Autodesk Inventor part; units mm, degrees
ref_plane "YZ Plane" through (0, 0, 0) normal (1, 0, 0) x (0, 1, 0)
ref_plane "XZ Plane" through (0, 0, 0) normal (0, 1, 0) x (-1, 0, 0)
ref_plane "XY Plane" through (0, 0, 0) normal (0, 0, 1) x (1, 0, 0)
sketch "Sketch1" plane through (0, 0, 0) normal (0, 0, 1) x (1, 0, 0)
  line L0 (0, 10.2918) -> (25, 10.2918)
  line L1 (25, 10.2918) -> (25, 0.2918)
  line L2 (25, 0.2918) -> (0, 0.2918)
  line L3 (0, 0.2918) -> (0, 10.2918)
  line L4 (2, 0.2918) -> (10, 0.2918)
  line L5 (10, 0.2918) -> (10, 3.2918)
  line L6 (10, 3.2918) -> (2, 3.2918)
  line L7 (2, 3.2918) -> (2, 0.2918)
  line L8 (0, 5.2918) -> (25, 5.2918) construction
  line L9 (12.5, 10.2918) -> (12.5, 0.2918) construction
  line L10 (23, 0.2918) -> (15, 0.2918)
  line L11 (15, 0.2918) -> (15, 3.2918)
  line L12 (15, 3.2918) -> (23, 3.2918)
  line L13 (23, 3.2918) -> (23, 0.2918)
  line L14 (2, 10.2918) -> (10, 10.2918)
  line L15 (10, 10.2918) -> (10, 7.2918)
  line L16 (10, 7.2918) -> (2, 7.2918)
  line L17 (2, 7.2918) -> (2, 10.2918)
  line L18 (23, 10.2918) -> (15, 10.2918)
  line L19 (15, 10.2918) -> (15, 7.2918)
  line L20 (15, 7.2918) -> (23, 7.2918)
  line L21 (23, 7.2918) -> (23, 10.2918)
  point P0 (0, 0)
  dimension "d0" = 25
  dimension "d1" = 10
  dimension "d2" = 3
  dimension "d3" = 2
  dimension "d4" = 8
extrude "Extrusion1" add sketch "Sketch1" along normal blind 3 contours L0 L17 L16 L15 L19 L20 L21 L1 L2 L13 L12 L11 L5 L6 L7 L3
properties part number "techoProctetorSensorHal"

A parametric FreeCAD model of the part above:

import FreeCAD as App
import Part
import Sketcher


def add_polygon(sketch, points):
    """Adds a closed chain of lines whose ends are joined by coincident constraints."""
    first, n = sketch.GeometryCount, len(points)
    for a, b in zip(points, points[1:] + points[:1]):
        sketch.addGeometry(Part.LineSegment(App.Vector(*a, 0), App.Vector(*b, 0)), False)
    for i in range(n):
        sketch.addConstraint(Sketcher.Constraint("Coincident", first + i, 2, first + (i + 1) % n, 1))

doc = App.newDocument("Part")
body = doc.addObject("PartDesign::Body", "Body")

sketch1 = body.newObject("Sketcher::SketchObject", "Sketch")
sketch1.AttachmentSupport = (doc.getObject("XY_Plane"), [""])
sketch1.MapMode = "FlatFace"
add_polygon(sketch1, [(2, 10.2918), (0, 10.2918), (0, 0.2918), (2, 0.2918), (2, 3.2918), (10, 3.2918), (10, 0.2918), (15, 0.2918), (15, 3.2918), (23, 3.2918), (23, 0.2918), (25, 0.2918), (25, 10.2918), (23, 10.2918), (23, 7.2918), (15, 7.2918), (15, 10.2918), (10, 10.2918), (10, 7.2918), (2, 7.2918)])
sketch1.addConstraint(Sketcher.Constraint("Horizontal", 0))
sketch1.addConstraint(Sketcher.Constraint("Vertical", 1))
sketch1.addConstraint(Sketcher.Constraint("Horizontal", 2))
sketch1.addConstraint(Sketcher.Constraint("Vertical", 3))
sketch1.addConstraint(Sketcher.Constraint("Horizontal", 4))
sketch1.addConstraint(Sketcher.Constraint("Vertical", 5))
sketch1.addConstraint(Sketcher.Constraint("Horizontal", 6))
sketch1.addConstraint(Sketcher.Constraint("Vertical", 7))
sketch1.addConstraint(Sketcher.Constraint("Horizontal", 8))
sketch1.addConstraint(Sketcher.Constraint("Vertical", 9))
sketch1.addConstraint(Sketcher.Constraint("Horizontal", 10))
sketch1.addConstraint(Sketcher.Constraint("Vertical", 11))
sketch1.addConstraint(Sketcher.Constraint("Horizontal", 12))
sketch1.addConstraint(Sketcher.Constraint("Vertical", 13))
sketch1.addConstraint(Sketcher.Constraint("Horizontal", 14))
sketch1.addConstraint(Sketcher.Constraint("Vertical", 15))
sketch1.addConstraint(Sketcher.Constraint("Horizontal", 16))
sketch1.addConstraint(Sketcher.Constraint("Vertical", 17))
sketch1.addConstraint(Sketcher.Constraint("Horizontal", 18))
sketch1.addConstraint(Sketcher.Constraint("Vertical", 19))
sketch1.addConstraint(Sketcher.Constraint("PointOnObject", 0, 2, -2))
sketch1.addConstraint(Sketcher.Constraint("Horizontal", 2, 2, 5, 2))
sketch1.addConstraint(Sketcher.Constraint("Horizontal", 4, 2, 7, 2))
sketch1.addConstraint(Sketcher.Constraint("Horizontal", 6, 2, 9, 2))
sketch1.addConstraint(Sketcher.Constraint("Horizontal", 0, 2, 11, 2))
sketch1.addConstraint(Sketcher.Constraint("Horizontal", 12, 2, 15, 2))
sketch1.addConstraint(Sketcher.Constraint("Horizontal", 14, 2, 17, 2))
sketch1.addConstraint(Sketcher.Constraint("Vertical", 9, 2, 12, 2))
sketch1.addConstraint(Sketcher.Constraint("Vertical", 7, 2, 14, 2))
sketch1.addConstraint(Sketcher.Constraint("Vertical", 5, 2, 16, 2))
sketch1.addConstraint(Sketcher.Constraint("Vertical", 3, 2, 18, 2))
sketch1.addConstraint(Sketcher.Constraint("Equal", 4, 8))
sketch1.addConstraint(Sketcher.Constraint("Equal", 2, 10))
sketch1.addConstraint(Sketcher.Constraint("Equal", 9, 13))
sketch1.addConstraint(Sketcher.Constraint("DistanceX", 0, 2, 0, 1, 2.0))
sketch1.addConstraint(Sketcher.Constraint("DistanceX", 4, 1, 4, 2, 8.0))
sketch1.addConstraint(Sketcher.Constraint("DistanceY", 1, 2, 1, 1, 10.0))
sketch1.addConstraint(Sketcher.Constraint("DistanceY", 3, 1, 3, 2, 3.0))
sketch1.addConstraint(Sketcher.Constraint("DistanceX", -1, 1, 10, 2, 25.0))
sketch1.addConstraint(Sketcher.Constraint("DistanceY", -1, 1, 0, 2, 10.2918))
pad1 = body.newObject("PartDesign::Pad", "Pad")
pad1.Profile = sketch1
pad1.Length = 3

doc.recompute()
